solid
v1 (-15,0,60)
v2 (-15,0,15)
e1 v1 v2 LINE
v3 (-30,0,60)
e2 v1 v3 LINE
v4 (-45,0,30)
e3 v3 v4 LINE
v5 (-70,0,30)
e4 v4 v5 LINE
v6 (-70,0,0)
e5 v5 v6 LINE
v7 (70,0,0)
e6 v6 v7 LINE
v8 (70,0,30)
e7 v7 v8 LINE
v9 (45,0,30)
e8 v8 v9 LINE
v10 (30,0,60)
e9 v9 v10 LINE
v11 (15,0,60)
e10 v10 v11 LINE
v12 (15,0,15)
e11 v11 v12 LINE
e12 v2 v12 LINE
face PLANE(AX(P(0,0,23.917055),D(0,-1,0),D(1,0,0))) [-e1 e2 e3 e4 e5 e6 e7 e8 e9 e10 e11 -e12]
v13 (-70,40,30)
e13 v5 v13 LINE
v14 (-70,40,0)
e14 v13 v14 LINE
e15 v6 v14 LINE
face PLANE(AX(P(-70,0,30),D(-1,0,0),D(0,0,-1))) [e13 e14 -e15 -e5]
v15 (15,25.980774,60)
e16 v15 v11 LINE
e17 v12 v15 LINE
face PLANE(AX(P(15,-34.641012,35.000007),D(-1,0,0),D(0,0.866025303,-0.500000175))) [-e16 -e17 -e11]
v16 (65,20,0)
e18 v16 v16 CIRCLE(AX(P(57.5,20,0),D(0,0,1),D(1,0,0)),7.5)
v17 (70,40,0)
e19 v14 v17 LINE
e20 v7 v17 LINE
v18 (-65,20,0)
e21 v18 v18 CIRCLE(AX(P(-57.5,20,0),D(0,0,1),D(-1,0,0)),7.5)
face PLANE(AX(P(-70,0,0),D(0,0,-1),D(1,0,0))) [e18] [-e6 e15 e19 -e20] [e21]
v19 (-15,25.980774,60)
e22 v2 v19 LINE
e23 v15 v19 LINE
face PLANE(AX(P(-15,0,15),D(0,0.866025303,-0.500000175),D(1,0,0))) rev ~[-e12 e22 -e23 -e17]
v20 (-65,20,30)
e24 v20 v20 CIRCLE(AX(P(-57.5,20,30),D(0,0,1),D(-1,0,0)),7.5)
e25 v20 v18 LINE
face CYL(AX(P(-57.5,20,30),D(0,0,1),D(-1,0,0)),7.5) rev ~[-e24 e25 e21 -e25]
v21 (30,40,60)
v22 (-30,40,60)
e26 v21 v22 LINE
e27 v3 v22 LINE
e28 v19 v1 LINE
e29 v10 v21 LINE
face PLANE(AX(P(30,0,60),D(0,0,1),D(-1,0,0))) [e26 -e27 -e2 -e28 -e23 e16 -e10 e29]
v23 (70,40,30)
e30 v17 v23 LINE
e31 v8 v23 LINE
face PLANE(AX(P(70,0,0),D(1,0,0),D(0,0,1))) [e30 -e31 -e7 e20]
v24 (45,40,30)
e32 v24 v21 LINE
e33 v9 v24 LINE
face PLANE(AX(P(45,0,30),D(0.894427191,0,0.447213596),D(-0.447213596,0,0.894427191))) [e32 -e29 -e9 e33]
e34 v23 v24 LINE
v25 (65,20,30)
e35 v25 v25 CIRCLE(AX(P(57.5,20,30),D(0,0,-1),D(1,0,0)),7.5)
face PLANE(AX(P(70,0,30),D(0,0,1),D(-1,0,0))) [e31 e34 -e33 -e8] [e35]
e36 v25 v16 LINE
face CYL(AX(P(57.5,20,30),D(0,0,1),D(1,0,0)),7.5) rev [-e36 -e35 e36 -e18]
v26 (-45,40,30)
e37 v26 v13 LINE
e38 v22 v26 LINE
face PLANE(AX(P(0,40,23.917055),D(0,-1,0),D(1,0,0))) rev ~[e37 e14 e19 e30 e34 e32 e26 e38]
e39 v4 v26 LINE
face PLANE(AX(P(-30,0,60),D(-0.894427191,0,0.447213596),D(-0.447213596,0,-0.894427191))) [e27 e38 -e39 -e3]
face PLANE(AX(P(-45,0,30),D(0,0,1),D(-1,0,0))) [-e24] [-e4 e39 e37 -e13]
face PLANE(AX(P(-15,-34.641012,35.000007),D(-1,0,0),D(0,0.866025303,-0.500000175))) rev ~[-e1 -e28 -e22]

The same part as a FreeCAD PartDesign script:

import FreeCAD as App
import Part
import Sketcher

V = App.Vector
Q = App.Units.Quantity


def add_polygon(sketch, points):
    """Adds a closed chain of lines whose ends are joined by coincident constraints."""
    first, n = sketch.GeometryCount, len(points)
    for a, b in zip(points, points[1:] + points[:1]):
        sketch.addGeometry(Part.LineSegment(App.Vector(*a, 0), App.Vector(*b, 0)), False)
    for i in range(n):
        sketch.addConstraint(Sketcher.Constraint("Coincident", first + i, 2, first + (i + 1) % n, 1))

doc = App.newDocument("Part")
body = doc.addObject("PartDesign::Body", "Body")

sketch1 = body.newObject("Sketcher::SketchObject", "Sketch")
sketch1.Placement = App.Placement(V(0, 0, 15), App.Rotation(V(1, 0, 0), V(0, 0.866025303, -0.500000175), V(0, 0.500000175, 0.866025303), "ZXY"))
add_polygon(sketch1, [(-15, 0), (-15, -40), (15, -40), (15, 0)])
sketch1.addConstraint(Sketcher.Constraint("Vertical", 0))
sketch1.addConstraint(Sketcher.Constraint("Horizontal", 1))
sketch1.addConstraint(Sketcher.Constraint("Vertical", 2))
sketch1.addConstraint(Sketcher.Constraint("Horizontal", 3))
sketch1.addConstraint(Sketcher.Constraint("Symmetric", 2, 2, 3, 2, -1, 1))
sketch1.addConstraint(Sketcher.Constraint("DistanceX", 1, 1, 1, 2, Q("30 mm")))
sketch1.addConstraint(Sketcher.Constraint("DistanceY", 0, 2, 0, 1, Q("40 mm")))
pad1 = body.newObject("PartDesign::Pad", "Pad")
pad1.Profile = sketch1
pad1.Length = 85
body2 = doc.addObject("PartDesign::Body", "Body001")

sketch2 = body2.newObject("Sketcher::SketchObject", "Sketch001")
sketch2.AttachmentSupport = (doc.getObject("XZ_Plane001"), [""])
sketch2.MapMode = "FlatFace"
add_polygon(sketch2, [(-70, 0), (70, 0), (70, 30), (45, 30), (30, 60), (-30, 60), (-45, 30), (-70, 30)])
sketch2.addConstraint(Sketcher.Constraint("Horizontal", 0))
sketch2.addConstraint(Sketcher.Constraint("Vertical", 1))
sketch2.addConstraint(Sketcher.Constraint("Horizontal", 2))
sketch2.addConstraint(Sketcher.Constraint("Horizontal", 4))
sketch2.addConstraint(Sketcher.Constraint("Horizontal", 6))
sketch2.addConstraint(Sketcher.Constraint("Vertical", 7))
sketch2.addConstraint(Sketcher.Constraint("Symmetric", 0, 2, 7, 2, -1, 1))
sketch2.addConstraint(Sketcher.Constraint("Symmetric", 2, 2, 5, 2, -2))
sketch2.addConstraint(Sketcher.Constraint("Equal", 3, 5))
sketch2.addConstraint(Sketcher.Constraint("DistanceX", 0, 1, 0, 2, Q("140 mm")))
sketch2.addConstraint(Sketcher.Constraint("DistanceX", 2, 2, 2, 1, Q("25 mm")))
sketch2.addConstraint(Sketcher.Constraint("DistanceX", 4, 2, 4, 1, Q("60 mm")))
sketch2.addConstraint(Sketcher.Constraint("DistanceY", 1, 1, 1, 2, Q("30 mm")))
sketch2.addConstraint(Sketcher.Constraint("DistanceY", -1, 1, 3, 2, Q("60 mm")))
pad2 = body2.newObject("PartDesign::Pad", "Pad001")
pad2.Profile = sketch2
pad2.Length = 40
pad2.Reversed = True

sketch3 = body2.newObject("Sketcher::SketchObject", "Sketch002")
sketch3.AttachmentSupport = (doc.getObject("XY_Plane001"), [""])
sketch3.MapMode = "FlatFace"
sketch3.AttachmentOffset = App.Placement(V(0, 0, 30), App.Rotation())
sketch3.addGeometry(Part.Circle(V(-57.5, 20, 0), V(0, 0, 1), 7.5), False)
sketch3.addConstraint(Sketcher.Constraint("Diameter", 0, Q("15 mm")))
sketch3.addConstraint(Sketcher.Constraint("DistanceY", -1, 1, 0, 3, Q("20 mm")))
sketch3.addConstraint(Sketcher.Constraint("DistanceX", 0, 3, -1, 1, Q("57.5 mm")))
pocket1 = body2.newObject("PartDesign::Pocket", "Pocket")
pocket1.Profile = sketch3
pocket1.Type = "ThroughAll"
doc.recompute()

mirrored = body2.newObject("PartDesign::Mirrored", "Mirrored")
mirrored.Originals = [pocket1]
mirrored.MirrorPlane = (doc.getObject("YZ_Plane001"), [""])
body2.Tip = mirrored
doc.recompute()

boolean = body2.newObject("PartDesign::Boolean", "Boolean")
boolean.Type = "Cut"
boolean.addObjects([body])

doc.recompute()
